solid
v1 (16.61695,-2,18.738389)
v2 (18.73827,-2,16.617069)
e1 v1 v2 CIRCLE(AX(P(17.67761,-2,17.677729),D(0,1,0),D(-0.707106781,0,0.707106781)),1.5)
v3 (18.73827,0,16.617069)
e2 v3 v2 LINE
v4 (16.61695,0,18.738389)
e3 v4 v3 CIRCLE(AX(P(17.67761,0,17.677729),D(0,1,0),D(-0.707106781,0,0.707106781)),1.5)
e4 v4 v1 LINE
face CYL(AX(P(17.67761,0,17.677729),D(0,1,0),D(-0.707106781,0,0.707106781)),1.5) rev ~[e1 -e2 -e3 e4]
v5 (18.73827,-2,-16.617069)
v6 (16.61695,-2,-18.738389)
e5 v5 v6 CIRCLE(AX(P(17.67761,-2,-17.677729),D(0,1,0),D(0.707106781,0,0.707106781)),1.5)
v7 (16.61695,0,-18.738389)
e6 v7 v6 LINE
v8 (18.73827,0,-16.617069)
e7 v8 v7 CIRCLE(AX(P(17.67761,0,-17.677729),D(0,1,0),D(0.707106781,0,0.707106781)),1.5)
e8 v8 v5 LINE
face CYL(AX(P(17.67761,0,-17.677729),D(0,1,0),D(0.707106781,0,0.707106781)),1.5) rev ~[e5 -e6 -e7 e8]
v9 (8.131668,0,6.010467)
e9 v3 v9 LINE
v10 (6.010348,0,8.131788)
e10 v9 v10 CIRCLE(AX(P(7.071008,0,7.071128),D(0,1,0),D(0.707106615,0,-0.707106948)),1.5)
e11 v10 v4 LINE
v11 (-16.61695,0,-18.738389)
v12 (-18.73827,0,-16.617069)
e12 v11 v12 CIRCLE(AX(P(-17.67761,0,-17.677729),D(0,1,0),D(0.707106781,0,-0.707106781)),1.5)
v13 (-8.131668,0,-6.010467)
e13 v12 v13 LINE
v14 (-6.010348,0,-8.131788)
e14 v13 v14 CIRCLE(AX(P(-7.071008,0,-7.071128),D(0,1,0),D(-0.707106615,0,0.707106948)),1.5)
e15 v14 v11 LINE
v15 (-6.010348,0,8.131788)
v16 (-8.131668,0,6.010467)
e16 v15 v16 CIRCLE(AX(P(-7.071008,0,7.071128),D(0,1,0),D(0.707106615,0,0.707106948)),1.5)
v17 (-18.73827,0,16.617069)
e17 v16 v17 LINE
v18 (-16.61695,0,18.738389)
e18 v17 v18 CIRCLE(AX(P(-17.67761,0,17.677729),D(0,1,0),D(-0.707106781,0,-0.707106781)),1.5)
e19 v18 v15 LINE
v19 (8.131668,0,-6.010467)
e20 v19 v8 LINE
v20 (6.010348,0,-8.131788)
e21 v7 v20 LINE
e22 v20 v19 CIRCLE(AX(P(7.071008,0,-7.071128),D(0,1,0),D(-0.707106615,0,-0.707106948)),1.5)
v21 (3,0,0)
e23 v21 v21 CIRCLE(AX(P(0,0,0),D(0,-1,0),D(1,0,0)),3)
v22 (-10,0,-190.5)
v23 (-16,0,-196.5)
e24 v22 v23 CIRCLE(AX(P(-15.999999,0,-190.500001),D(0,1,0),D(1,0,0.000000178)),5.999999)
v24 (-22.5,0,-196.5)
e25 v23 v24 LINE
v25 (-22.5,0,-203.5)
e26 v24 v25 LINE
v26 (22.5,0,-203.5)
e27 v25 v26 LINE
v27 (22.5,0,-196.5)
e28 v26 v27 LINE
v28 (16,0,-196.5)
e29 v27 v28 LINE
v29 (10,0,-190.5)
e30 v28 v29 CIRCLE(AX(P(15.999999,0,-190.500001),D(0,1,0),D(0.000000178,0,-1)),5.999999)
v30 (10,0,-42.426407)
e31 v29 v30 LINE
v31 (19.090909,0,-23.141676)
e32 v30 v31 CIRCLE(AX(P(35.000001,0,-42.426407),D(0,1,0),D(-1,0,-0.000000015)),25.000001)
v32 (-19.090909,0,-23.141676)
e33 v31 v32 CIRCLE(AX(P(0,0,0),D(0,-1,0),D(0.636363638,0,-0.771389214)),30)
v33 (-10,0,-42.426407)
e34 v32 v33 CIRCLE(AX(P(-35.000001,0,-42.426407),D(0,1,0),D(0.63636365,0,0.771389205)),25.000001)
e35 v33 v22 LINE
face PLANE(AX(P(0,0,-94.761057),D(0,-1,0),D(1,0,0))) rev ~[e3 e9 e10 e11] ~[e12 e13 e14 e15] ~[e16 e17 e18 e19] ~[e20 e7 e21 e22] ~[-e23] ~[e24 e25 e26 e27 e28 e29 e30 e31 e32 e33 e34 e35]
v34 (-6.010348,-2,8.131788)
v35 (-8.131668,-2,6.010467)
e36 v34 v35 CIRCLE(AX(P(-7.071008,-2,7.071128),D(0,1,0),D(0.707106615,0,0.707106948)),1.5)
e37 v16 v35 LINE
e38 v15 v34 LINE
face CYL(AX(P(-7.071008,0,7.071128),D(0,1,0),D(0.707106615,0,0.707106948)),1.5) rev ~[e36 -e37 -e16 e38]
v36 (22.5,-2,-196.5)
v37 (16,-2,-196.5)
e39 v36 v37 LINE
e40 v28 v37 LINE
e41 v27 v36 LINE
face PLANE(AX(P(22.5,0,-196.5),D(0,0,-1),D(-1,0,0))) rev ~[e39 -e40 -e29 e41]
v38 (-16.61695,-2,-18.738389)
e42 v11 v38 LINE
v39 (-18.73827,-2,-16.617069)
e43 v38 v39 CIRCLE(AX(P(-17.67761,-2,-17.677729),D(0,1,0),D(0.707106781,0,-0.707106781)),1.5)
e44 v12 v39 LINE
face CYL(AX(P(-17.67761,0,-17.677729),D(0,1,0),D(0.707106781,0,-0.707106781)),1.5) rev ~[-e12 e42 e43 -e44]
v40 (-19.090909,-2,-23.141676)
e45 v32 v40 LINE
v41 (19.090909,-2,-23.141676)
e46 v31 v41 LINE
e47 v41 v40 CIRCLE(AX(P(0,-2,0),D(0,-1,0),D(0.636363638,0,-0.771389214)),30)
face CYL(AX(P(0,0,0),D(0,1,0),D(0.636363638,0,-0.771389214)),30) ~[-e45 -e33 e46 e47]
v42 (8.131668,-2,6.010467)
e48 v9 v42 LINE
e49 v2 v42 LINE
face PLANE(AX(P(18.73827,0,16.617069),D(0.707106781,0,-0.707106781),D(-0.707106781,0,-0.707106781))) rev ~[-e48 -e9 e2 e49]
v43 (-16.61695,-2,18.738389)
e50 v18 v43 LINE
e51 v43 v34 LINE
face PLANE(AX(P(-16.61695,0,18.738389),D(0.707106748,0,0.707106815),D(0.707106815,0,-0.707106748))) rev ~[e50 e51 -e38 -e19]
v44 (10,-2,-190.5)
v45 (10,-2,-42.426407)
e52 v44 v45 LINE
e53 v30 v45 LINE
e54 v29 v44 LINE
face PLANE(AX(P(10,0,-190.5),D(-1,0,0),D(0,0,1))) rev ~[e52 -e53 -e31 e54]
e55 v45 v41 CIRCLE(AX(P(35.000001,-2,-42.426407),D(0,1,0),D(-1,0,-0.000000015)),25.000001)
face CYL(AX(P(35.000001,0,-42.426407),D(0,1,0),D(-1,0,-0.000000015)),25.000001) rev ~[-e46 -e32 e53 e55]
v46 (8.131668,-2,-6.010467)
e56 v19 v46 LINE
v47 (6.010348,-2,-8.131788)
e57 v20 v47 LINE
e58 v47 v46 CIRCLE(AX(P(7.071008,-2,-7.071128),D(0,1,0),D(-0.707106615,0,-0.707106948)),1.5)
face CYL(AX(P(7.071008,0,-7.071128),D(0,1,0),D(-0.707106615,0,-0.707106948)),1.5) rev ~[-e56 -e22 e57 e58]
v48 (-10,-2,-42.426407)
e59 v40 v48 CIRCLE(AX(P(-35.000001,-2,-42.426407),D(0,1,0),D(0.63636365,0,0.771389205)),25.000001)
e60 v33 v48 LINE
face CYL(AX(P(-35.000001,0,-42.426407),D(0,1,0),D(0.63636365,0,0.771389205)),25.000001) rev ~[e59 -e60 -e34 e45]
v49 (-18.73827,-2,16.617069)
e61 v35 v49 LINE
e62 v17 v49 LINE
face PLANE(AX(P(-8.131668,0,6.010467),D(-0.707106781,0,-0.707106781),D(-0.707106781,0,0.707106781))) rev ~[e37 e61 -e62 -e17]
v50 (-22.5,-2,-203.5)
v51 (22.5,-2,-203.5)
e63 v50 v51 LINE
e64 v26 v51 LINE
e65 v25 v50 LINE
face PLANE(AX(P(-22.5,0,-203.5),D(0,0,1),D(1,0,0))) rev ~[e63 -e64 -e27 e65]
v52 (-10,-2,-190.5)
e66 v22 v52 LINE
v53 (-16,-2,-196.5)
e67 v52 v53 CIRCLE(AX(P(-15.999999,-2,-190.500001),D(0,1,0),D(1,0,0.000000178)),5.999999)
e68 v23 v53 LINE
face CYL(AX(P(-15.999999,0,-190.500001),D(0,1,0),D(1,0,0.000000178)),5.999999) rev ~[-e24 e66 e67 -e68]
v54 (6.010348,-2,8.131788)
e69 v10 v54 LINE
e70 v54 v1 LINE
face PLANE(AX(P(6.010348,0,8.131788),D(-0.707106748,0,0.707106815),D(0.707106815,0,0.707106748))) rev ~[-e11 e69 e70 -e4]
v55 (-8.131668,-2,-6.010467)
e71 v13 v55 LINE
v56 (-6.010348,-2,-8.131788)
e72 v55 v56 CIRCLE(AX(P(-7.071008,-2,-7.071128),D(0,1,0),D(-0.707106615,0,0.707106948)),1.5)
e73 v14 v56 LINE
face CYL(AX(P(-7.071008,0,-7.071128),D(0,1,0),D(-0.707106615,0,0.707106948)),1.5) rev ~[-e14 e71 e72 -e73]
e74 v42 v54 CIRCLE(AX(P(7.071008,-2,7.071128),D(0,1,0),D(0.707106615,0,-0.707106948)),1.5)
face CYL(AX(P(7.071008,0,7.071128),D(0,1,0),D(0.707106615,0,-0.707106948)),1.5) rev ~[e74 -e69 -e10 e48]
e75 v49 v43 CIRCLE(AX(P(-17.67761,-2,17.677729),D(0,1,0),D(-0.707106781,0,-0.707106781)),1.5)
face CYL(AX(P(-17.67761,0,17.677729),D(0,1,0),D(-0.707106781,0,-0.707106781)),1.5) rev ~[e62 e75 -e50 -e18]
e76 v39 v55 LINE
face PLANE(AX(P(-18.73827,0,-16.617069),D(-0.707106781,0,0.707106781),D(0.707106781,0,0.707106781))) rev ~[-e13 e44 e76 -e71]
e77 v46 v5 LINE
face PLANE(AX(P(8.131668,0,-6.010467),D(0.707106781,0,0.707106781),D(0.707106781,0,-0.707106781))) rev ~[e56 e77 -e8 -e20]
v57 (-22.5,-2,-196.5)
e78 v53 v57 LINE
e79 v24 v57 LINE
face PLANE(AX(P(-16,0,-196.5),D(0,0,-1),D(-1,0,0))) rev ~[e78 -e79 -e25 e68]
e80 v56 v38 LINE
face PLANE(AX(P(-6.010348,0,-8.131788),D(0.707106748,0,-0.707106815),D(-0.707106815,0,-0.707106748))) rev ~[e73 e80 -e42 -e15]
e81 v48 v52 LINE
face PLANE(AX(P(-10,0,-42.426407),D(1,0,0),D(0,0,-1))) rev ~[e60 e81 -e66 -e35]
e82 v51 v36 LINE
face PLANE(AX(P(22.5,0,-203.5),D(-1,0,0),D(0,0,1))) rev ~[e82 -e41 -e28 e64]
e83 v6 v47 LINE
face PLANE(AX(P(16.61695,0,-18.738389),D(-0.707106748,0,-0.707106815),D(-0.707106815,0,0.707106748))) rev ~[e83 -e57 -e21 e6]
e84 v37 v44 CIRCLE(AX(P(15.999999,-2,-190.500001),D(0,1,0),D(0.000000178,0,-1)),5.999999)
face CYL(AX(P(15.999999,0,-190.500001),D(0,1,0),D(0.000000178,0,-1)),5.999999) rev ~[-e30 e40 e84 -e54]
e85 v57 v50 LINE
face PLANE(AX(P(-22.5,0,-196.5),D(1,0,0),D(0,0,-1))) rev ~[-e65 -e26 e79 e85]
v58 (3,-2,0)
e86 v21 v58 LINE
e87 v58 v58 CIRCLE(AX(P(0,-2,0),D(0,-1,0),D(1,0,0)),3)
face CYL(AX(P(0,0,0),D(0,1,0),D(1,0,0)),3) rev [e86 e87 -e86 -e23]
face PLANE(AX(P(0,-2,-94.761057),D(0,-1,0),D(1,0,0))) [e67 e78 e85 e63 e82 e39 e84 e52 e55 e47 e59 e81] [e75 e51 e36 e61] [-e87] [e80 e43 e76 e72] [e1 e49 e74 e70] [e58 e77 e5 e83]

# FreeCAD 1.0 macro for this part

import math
import FreeCAD as App
import Part
import Sketcher

V = App.Vector
Q = App.Units.Quantity

doc = App.newDocument("Part")
params = doc.addObject("Spreadsheet::Sheet", "Params")
for row, (alias, value) in enumerate([
    ("sketch1_diameter", "6 mm"),
    ("sketch1_radius", "25.000001 mm"),
    ("sketch1_radius2", "30 mm"),
    ("sketch1_radius3", "5.999999 mm"),
    ("sketch1_radius4", "1.5 mm"),
    ("pad1_length", "2 mm"),
], start=1):
    params.set(f"A{row}", alias)
    params.set(f"B{row}", "=" + value)
    params.setAlias(f"B{row}", alias)

body = doc.addObject("PartDesign::Body", "Body")

# Sketch on XZ plane
sketch1 = doc.addObject("Sketcher::SketchObject", "Sketch")
body.addObject(sketch1)
sketch1.AttachmentSupport = (doc.XZ_Plane, [""])
sketch1.MapMode = "FlatFace"
sketch1.addGeometry(Part.ArcOfCircle(Part.Circle(V(35.000001, -42.426407, 0), V(0, 0, 1), 25.000001), math.radians(129.521197), math.radians(180.000001)), False)
sketch1.addGeometry(Part.ArcOfCircle(Part.Circle(V(0, 0, 0), V(0, 0, 1), 30), math.radians(-50.478803), math.radians(230.478803)), False)
sketch1.addGeometry(Part.ArcOfCircle(Part.Circle(V(-35.000001, -42.426407, 0), V(0, 0, 1), 25.000001), math.radians(-0.000001), math.radians(50.478803)), False)
sketch1.addGeometry(Part.LineSegment(V(-10, -42.426407, 0), V(-10, -190.5, 0)), False)
sketch1.addGeometry(Part.ArcOfCircle(Part.Circle(V(-15.999999, -190.500001, 0), V(0, 0, 1), 5.999999), math.radians(-90.00001), math.radians(0.00001)), False)
sketch1.addGeometry(Part.LineSegment(V(-16, -196.5, 0), V(-22.5, -196.5, 0)), False)
sketch1.addGeometry(Part.LineSegment(V(-22.5, -196.5, 0), V(-22.5, -203.5, 0)), False)
sketch1.addGeometry(Part.LineSegment(V(-22.5, -203.5, 0), V(22.5, -203.5, 0)), False)
sketch1.addGeometry(Part.LineSegment(V(22.5, -203.5, 0), V(22.5, -196.5, 0)), False)
sketch1.addGeometry(Part.LineSegment(V(22.5, -196.5, 0), V(16, -196.5, 0)), False)
sketch1.addGeometry(Part.ArcOfCircle(Part.Circle(V(15.999999, -190.500001, 0), V(0, 0, 1), 5.999999), math.radians(179.99999), math.radians(270.00001)), False)
sketch1.addGeometry(Part.LineSegment(V(10, -190.5, 0), V(10, -42.426407, 0)), False)
sketch1.addGeometry(Part.ArcOfCircle(Part.Circle(V(-7.071008, -7.071128, 0), V(0, 0, 1), 1.5), math.radians(-45.000014), math.radians(134.999986)), False)
sketch1.addGeometry(Part.LineSegment(V(-6.010348, -8.131788, 0), V(-16.61695, -18.738389, 0)), False)
sketch1.addGeometry(Part.ArcOfCircle(Part.Circle(V(-17.67761, -17.677729, 0), V(0, 0, 1), 1.5), math.radians(135), math.radians(315)), False)
sketch1.addGeometry(Part.LineSegment(V(-18.73827, -16.617069, 0), V(-8.131668, -6.010467, 0)), False)
sketch1.addGeometry(Part.ArcOfCircle(Part.Circle(V(7.071008, -7.071128, 0), V(0, 0, 1), 1.5), math.radians(45.000014), math.radians(225.000014)), False)
sketch1.addGeometry(Part.LineSegment(V(8.131668, -6.010467, 0), V(18.73827, -16.617069, 0)), False)
sketch1.addGeometry(Part.ArcOfCircle(Part.Circle(V(17.67761, -17.677729, 0), V(0, 0, 1), 1.5), math.radians(-135), math.radians(45)), False)
sketch1.addGeometry(Part.LineSegment(V(16.61695, -18.738389, 0), V(6.010348, -8.131788, 0)), False)
sketch1.addGeometry(Part.LineSegment(V(-8.131668, 6.010467, 0), V(-18.73827, 16.617069, 0)), False)
sketch1.addGeometry(Part.ArcOfCircle(Part.Circle(V(-17.67761, 17.677729, 0), V(0, 0, 1), 1.5), math.radians(45), math.radians(225)), False)
sketch1.addGeometry(Part.LineSegment(V(-16.61695, 18.738389, 0), V(-6.010348, 8.131788, 0)), False)
sketch1.addGeometry(Part.ArcOfCircle(Part.Circle(V(-7.071008, 7.071128, 0), V(0, 0, 1), 1.5), math.radians(-134.999986), math.radians(45.000014)), False)
sketch1.addGeometry(Part.Circle(V(0, 0, 0), V(0, 0, 1), 3), False)
sketch1.addGeometry(Part.LineSegment(V(6.010348, 8.131788, 0), V(16.61695, 18.738389, 0)), False)
sketch1.addGeometry(Part.ArcOfCircle(Part.Circle(V(17.67761, 17.677729, 0), V(0, 0, 1), 1.5), math.radians(-45), math.radians(135)), False)
sketch1.addGeometry(Part.LineSegment(V(18.73827, 16.617069, 0), V(8.131668, 6.010467, 0)), False)
sketch1.addGeometry(Part.ArcOfCircle(Part.Circle(V(7.071008, 7.071128, 0), V(0, 0, 1), 1.5), math.radians(134.999986), math.radians(314.999986)), False)
sketch1.addConstraint(Sketcher.Constraint("Tangent", 0, 1, 1, 1))
sketch1.addConstraint(Sketcher.Constraint("Tangent", 1, 2, 2, 2))
sketch1.addConstraint(Sketcher.Constraint("Tangent", 2, 1, 3, 1))
sketch1.addConstraint(Sketcher.Constraint("Tangent", 3, 2, 4, 2))
sketch1.addConstraint(Sketcher.Constraint("Tangent", 4, 1, 5, 1))
sketch1.addConstraint(Sketcher.Constraint("Coincident", 5, 2, 6, 1))
sketch1.addConstraint(Sketcher.Constraint("Coincident", 6, 2, 7, 1))
sketch1.addConstraint(Sketcher.Constraint("Coincident", 7, 2, 8, 1))
sketch1.addConstraint(Sketcher.Constraint("Coincident", 8, 2, 9, 1))
sketch1.addConstraint(Sketcher.Constraint("Tangent", 9, 2, 10, 2))
sketch1.addConstraint(Sketcher.Constraint("Tangent", 10, 1, 11, 1))
sketch1.addConstraint(Sketcher.Constraint("Tangent", 11, 2, 0, 2))
sketch1.addConstraint(Sketcher.Constraint("Tangent", 12, 1, 13, 1))
sketch1.addConstraint(Sketcher.Constraint("Tangent", 13, 2, 14, 2))
sketch1.addConstraint(Sketcher.Constraint("Tangent", 14, 1, 15, 1))
sketch1.addConstraint(Sketcher.Constraint("Tangent", 15, 2, 12, 2))
sketch1.addConstraint(Sketcher.Constraint("Tangent", 16, 1, 17, 1))
sketch1.addConstraint(Sketcher.Constraint("Tangent", 17, 2, 18, 2))
sketch1.addConstraint(Sketcher.Constraint("Tangent", 18, 1, 19, 1))
sketch1.addConstraint(Sketcher.Constraint("Tangent", 19, 2, 16, 2))
sketch1.addConstraint(Sketcher.Constraint("Tangent", 20, 2, 21, 2))
sketch1.addConstraint(Sketcher.Constraint("Tangent", 21, 1, 22, 1))
sketch1.addConstraint(Sketcher.Constraint("Tangent", 22, 2, 23, 2))
sketch1.addConstraint(Sketcher.Constraint("Tangent", 23, 1, 20, 1))
sketch1.addConstraint(Sketcher.Constraint("Tangent", 25, 2, 26, 2))
sketch1.addConstraint(Sketcher.Constraint("Tangent", 26, 1, 27, 1))
sketch1.addConstraint(Sketcher.Constraint("Tangent", 27, 2, 28, 2))
sketch1.addConstraint(Sketcher.Constraint("Tangent", 28, 1, 25, 1))
sketch1.addConstraint(Sketcher.Constraint("Vertical", 3))
sketch1.addConstraint(Sketcher.Constraint("Horizontal", 5))
sketch1.addConstraint(Sketcher.Constraint("Vertical", 6))
sketch1.addConstraint(Sketcher.Constraint("Horizontal", 7))
sketch1.addConstraint(Sketcher.Constraint("Vertical", 8))
sketch1.addConstraint(Sketcher.Constraint("Horizontal", 9))
sketch1.addConstraint(Sketcher.Constraint("Vertical", 11))
sketch1.addConstraint(Sketcher.Constraint("Coincident", 1, 3, -1, 1))
sketch1.addConstraint(Sketcher.Constraint("Coincident", 24, 3, -1, 1))
sketch1.addConstraint(Sketcher.Constraint("Equal", 0, 2))
sketch1.addConstraint(Sketcher.Constraint("Equal", 4, 10))
sketch1.addConstraint(Sketcher.Constraint("Equal", 12, 14))
sketch1.addConstraint(Sketcher.Constraint("Equal", 14, 16))
sketch1.addConstraint(Sketcher.Constraint("Equal", 16, 18))
sketch1.addConstraint(Sketcher.Constraint("Equal", 18, 21))
sketch1.addConstraint(Sketcher.Constraint("Equal", 21, 23))
sketch1.addConstraint(Sketcher.Constraint("Equal", 23, 26))
sketch1.addConstraint(Sketcher.Constraint("Equal", 26, 28))
sketch1.addConstraint(Sketcher.Constraint("Symmetric", 18, 3, 21, 3, -1, 1))
sketch1.addConstraint(Sketcher.Constraint("Symmetric", 16, 3, 23, 3, -1, 1))
sketch1.addConstraint(Sketcher.Constraint("Symmetric", 14, 3, 26, 3, -1, 1))
sketch1.addConstraint(Sketcher.Constraint("Symmetric", 12, 3, 28, 3, -1, 1))
sketch1.addConstraint(Sketcher.Constraint("Symmetric", 4, 3, 10, 3, -2))
sketch1.addConstraint(Sketcher.Constraint("Symmetric", 12, 3, 16, 3, -2))
sketch1.addConstraint(Sketcher.Constraint("Symmetric", 14, 3, 18, 3, -2))
sketch1.addConstraint(Sketcher.Constraint("Perpendicular", 15, 17))
sketch1.addConstraint(Sketcher.Constraint("Equal", 5, 9))
sketch1.addConstraint(Sketcher.Constraint("Diameter", 24, Q("6 mm")))
sketch1.addConstraint(Sketcher.Constraint("Radius", 0, Q("25.000001 mm")))
sketch1.addConstraint(Sketcher.Constraint("Radius", 1, Q("30 mm")))
sketch1.addConstraint(Sketcher.Constraint("Radius", 4, Q("5.999999 mm")))
sketch1.addConstraint(Sketcher.Constraint("Radius", 12, Q("1.5 mm")))
sketch1.addConstraint(Sketcher.Constraint("DistanceX", 7, 1, 7, 2, Q("45 mm")))
sketch1.addConstraint(Sketcher.Constraint("DistanceY", 6, 2, 6, 1, Q("7 mm")))
sketch1.addConstraint(Sketcher.Constraint("Distance", 13, Q("15 mm")))
sketch1.addConstraint(Sketcher.Constraint("DistanceX", 5, 2, 5, 1, Q("6.5 mm")))
sketch1.addConstraint(Sketcher.Constraint("DistanceY", 4, 3, -1, 1, Q("190.500001 mm")))
sketch1.addConstraint(Sketcher.Constraint("DistanceX", 18, 3, 0, 1, Q("1.413299 mm")))
sketch1.addConstraint(Sketcher.Constraint("DistanceY", 14, 3, -1, 1, Q("17.677729 mm")))
sketch1.setExpression("Constraints[55]", "Params.sketch1_diameter")
sketch1.setExpression("Constraints[56]", "Params.sketch1_radius")
sketch1.setExpression("Constraints[57]", "Params.sketch1_radius2")
sketch1.setExpression("Constraints[58]", "Params.sketch1_radius3")
sketch1.setExpression("Constraints[59]", "Params.sketch1_radius4")
pad1 = doc.addObject("PartDesign::Pad", "Pad")
body.addObject(pad1)
pad1.Profile = sketch1
pad1.setExpression("Length", "Params.pad1_length")

doc.recompute()
